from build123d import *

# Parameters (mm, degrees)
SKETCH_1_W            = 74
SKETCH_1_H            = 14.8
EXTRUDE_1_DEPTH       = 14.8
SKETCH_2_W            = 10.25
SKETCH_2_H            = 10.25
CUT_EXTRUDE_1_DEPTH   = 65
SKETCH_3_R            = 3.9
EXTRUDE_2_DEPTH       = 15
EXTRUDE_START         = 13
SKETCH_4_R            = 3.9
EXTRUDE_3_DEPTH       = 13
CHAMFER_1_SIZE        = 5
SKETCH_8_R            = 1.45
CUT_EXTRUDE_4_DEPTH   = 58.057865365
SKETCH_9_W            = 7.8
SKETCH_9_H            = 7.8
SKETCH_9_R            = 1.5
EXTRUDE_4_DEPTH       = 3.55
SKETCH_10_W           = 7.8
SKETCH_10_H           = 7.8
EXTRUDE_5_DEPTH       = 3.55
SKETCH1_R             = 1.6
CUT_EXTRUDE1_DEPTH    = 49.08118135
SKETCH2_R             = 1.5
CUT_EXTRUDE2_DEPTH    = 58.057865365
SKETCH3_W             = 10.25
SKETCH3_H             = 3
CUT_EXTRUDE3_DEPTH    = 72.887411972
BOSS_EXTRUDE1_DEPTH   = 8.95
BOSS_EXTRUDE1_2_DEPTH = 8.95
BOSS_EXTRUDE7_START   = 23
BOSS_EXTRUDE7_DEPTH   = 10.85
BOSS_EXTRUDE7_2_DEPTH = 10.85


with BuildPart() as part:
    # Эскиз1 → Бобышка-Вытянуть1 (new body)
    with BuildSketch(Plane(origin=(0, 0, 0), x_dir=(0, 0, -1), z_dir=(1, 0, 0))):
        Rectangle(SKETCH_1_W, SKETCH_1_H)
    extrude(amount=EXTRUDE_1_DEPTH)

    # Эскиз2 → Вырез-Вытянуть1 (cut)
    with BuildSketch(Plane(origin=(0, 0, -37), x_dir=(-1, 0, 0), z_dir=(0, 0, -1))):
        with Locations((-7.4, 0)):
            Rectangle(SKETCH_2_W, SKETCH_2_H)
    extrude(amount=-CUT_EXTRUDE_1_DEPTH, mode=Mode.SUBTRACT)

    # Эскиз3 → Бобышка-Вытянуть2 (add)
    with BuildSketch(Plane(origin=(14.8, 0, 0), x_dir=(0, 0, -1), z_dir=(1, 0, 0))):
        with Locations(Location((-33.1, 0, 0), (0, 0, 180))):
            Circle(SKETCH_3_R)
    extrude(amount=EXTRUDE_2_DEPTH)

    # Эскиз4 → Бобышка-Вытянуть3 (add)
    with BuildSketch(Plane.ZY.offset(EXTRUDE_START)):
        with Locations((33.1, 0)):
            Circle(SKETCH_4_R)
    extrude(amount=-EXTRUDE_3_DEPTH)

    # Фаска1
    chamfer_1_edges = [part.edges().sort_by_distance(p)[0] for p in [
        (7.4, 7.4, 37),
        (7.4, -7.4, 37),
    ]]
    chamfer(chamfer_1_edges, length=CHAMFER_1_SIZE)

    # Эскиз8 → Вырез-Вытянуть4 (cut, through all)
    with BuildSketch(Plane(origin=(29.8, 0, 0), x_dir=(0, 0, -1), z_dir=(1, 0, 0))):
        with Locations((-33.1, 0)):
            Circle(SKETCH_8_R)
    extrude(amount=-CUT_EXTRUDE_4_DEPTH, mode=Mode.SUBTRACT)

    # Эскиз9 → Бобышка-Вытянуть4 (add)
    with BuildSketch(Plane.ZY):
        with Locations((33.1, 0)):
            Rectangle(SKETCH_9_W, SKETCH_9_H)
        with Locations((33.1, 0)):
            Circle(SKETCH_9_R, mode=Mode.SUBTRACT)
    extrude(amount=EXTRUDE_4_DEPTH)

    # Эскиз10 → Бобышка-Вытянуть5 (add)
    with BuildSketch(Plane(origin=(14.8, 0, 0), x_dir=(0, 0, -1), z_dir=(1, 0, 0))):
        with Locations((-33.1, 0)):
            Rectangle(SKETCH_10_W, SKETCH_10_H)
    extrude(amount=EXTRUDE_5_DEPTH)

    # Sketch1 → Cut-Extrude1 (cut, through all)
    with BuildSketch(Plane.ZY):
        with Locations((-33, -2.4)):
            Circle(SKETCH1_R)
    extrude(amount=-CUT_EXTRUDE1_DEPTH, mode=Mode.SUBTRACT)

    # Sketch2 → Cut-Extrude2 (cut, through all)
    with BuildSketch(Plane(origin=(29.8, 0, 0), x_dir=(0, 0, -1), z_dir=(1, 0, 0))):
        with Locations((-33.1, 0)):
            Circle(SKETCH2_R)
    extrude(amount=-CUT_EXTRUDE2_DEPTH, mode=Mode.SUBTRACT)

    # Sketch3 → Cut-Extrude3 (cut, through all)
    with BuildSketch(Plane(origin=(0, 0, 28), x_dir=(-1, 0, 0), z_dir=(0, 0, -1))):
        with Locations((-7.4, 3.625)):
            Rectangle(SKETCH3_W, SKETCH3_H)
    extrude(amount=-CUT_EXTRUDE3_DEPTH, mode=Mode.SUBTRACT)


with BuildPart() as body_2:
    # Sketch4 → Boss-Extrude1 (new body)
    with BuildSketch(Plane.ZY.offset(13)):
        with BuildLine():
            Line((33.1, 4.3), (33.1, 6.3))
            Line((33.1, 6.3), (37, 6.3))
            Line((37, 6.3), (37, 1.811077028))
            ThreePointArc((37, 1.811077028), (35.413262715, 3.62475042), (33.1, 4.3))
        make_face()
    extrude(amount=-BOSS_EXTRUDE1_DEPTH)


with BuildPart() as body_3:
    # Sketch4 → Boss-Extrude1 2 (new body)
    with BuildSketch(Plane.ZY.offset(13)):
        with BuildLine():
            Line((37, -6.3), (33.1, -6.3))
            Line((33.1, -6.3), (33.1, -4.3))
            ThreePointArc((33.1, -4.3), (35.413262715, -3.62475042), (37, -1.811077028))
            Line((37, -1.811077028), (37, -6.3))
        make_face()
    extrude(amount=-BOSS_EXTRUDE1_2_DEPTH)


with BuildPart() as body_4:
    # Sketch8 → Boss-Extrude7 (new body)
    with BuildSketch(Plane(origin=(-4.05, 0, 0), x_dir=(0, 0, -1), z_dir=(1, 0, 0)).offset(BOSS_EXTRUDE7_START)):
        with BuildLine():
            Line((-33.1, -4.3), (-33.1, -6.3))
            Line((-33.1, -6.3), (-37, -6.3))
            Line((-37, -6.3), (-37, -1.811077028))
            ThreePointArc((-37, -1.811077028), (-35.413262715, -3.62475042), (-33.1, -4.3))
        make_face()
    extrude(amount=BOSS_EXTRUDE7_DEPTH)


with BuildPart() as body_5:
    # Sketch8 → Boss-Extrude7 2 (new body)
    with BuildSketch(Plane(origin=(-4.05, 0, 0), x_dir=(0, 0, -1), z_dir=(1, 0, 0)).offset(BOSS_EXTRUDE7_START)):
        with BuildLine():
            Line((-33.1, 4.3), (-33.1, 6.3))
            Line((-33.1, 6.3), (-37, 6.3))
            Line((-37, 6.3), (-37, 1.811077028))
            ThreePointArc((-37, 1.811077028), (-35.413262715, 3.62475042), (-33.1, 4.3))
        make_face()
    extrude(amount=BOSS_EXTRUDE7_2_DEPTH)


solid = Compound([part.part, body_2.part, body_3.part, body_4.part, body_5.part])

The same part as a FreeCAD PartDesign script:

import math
import FreeCAD as App
import Part
import Sketcher
Q = App.Units.Quantity


def edges_at(feature, points):
    """Names of the edges that pass closest to the given points."""
    edges = feature.Shape.Edges
    near = lambda p: min(range(len(edges)), key=lambda i: edges[i].distToShape(Part.Vertex(*p))[0])
    return sorted({f"Edge{near(p) + 1}" for p in points})


def add_polygon(sketch, points):
    """Adds a closed chain of lines whose ends are joined by coincident constraints."""
    first, n = sketch.GeometryCount, len(points)
    for a, b in zip(points, points[1:] + points[:1]):
        sketch.addGeometry(Part.LineSegment(App.Vector(*a, 0), App.Vector(*b, 0)), False)
    for i in range(n):
        sketch.addConstraint(Sketcher.Constraint("Coincident", first + i, 2, first + (i + 1) % n, 1))

doc = App.newDocument("Part")
body = doc.addObject("PartDesign::Body", "Body")

# Sketch on YZ plane
sketch1 = body.newObject("Sketcher::SketchObject", "Sketch")
sketch1.AttachmentSupport = (doc.getObject("YZ_Plane"), [""])
sketch1.MapMode = "FlatFace"
add_polygon(sketch1, [(7.4, 37), (-7.4, 37), (-7.4, -37), (7.4, -37)])  # lines 0-3
sketch1.addConstraint([
    Sketcher.Constraint("Horizontal", 0),
    Sketcher.Constraint("Vertical", 1),
    Sketcher.Constraint("Horizontal", 2),
    Sketcher.Constraint("Vertical", 3),
    Sketcher.Constraint("Symmetric", 0, 2, 2, 2, -1, 1),
    Sketcher.Constraint("DistanceY", 1, 2, 1, 1, Q("74 mm")),
    Sketcher.Constraint("DistanceX", 0, 2, 0, 1, Q("14.8 mm")),
])
pad1 = body.newObject("PartDesign::Pad", "Pad")
pad1.Profile = sketch1
pad1.Length = 14.8

# Sketch on XY plane
sketch2 = body.newObject("Sketcher::SketchObject", "Sketch001")
sketch2.AttachmentSupport = (doc.getObject("XY_Plane"), [""])
sketch2.MapMode = "FlatFace"
sketch2.AttachmentOffset = App.Placement(App.Vector(0, 0, -37), App.Rotation())
add_polygon(sketch2, [(12.525, 5.125), (12.525, -5.125), (2.275, -5.125), (2.275, 5.125)])  # lines 0-3
sketch2.addConstraint([
    Sketcher.Constraint("Vertical", 0),
    Sketcher.Constraint("Horizontal", 1),
    Sketcher.Constraint("Vertical", 2),
    Sketcher.Constraint("Horizontal", 3),
    Sketcher.Constraint("Equal", 3, 0),
    Sketcher.Constraint("DistanceX", 1, 2, 1, 1, Q("10.25 mm")),
    Sketcher.Constraint("DistanceX", -1, 1, 0, 2, Q("12.525 mm")),
    Sketcher.Constraint("DistanceY", 0, 2, -1, 1, Q("5.125 mm")),
])
pocket1 = body.newObject("PartDesign::Pocket", "Pocket")
pocket1.Profile = sketch2
pocket1.Length = 65
pocket1.Reversed = True

# Sketch on YZ plane
sketch3 = body.newObject("Sketcher::SketchObject", "Sketch002")
sketch3.AttachmentSupport = (doc.getObject("YZ_Plane"), [""])
sketch3.MapMode = "FlatFace"
sketch3.AttachmentOffset = App.Placement(App.Vector(0, 0, 14.8), App.Rotation())
sketch3.addGeometry(Part.Circle(App.Vector(0, 33.1, 0), App.Vector(0, 0, 1), 3.9), False)
sketch3.addConstraint([
    Sketcher.Constraint("PointOnObject", 0, 3, -2),
    Sketcher.Constraint("Diameter", 0, Q("7.8 mm")),
    Sketcher.Constraint("DistanceY", -1, 1, 0, 3, Q("33.1 mm")),
])
pad2 = body.newObject("PartDesign::Pad", "Pad001")
pad2.Profile = sketch3
pad2.Length = 15

# Sketch on YZ plane
sketch4 = body.newObject("Sketcher::SketchObject", "Sketch003")
sketch4.AttachmentSupport = (doc.getObject("YZ_Plane"), [""])
sketch4.MapMode = "FlatFace"
sketch4.AttachmentOffset = App.Placement(App.Vector(0, 0, -13), App.Rotation())
sketch4.addGeometry(Part.Circle(App.Vector(0, 33.1, 0), App.Vector(0, 0, 1), 3.9), False)
sketch4.addConstraint([
    Sketcher.Constraint("PointOnObject", 0, 3, -2),
    Sketcher.Constraint("Diameter", 0, Q("7.8 mm")),
    Sketcher.Constraint("DistanceY", -1, 1, 0, 3, Q("33.1 mm")),
])
pad3 = body.newObject("PartDesign::Pad", "Pad002")
pad3.Profile = sketch4
pad3.Length = 13
doc.recompute()

chamfer = body.newObject("PartDesign::Chamfer", "Chamfer")
chamfer.Base = (pad3, edges_at(pad3, [(7.4, 7.4, 37), (7.4, -7.4, 37)]))
chamfer.Size = 5

# Sketch on YZ plane
sketch5 = body.newObject("Sketcher::SketchObject", "Sketch004")
sketch5.AttachmentSupport = (doc.getObject("YZ_Plane"), [""])
sketch5.MapMode = "FlatFace"
sketch5.AttachmentOffset = App.Placement(App.Vector(0, 0, 29.8), App.Rotation())
sketch5.addGeometry(Part.Circle(App.Vector(0, 33.1, 0), App.Vector(0, 0, 1), 1.45), False)
sketch5.addConstraint([
    Sketcher.Constraint("PointOnObject", 0, 3, -2),
    Sketcher.Constraint("Diameter", 0, Q("2.9 mm")),
    Sketcher.Constraint("DistanceY", -1, 1, 0, 3, Q("33.1 mm")),
])
pocket2 = body.newObject("PartDesign::Pocket", "Pocket001")
pocket2.Profile = sketch5
pocket2.Type = "ThroughAll"

# Sketch on YZ plane
sketch6 = body.newObject("Sketcher::SketchObject", "Sketch005")
sketch6.AttachmentSupport = (doc.getObject("YZ_Plane"), [""])
sketch6.MapMode = "FlatFace"
add_polygon(sketch6, [(3.9, 29.2), (-3.9, 29.2), (-3.9, 37), (3.9, 37)])  # lines 0-3
sketch6.addGeometry(Part.Circle(App.Vector(0, 33.1, 0), App.Vector(0, 0, 1), 1.5), False)  # 4
sketch6.addConstraint([
    Sketcher.Constraint("Horizontal", 0),
    Sketcher.Constraint("Vertical", 1),
    Sketcher.Constraint("Horizontal", 2),
    Sketcher.Constraint("Vertical", 3),
    Sketcher.Constraint("PointOnObject", 4, 3, -2),
    Sketcher.Constraint("Equal", 2, 1),
    Sketcher.Constraint("Diameter", 4, Q("3 mm")),
    Sketcher.Constraint("DistanceX", 0, 2, 0, 1, Q("7.8 mm")),
    Sketcher.Constraint("DistanceY", -1, 1, 1, 2, Q("37 mm")),
    Sketcher.Constraint("DistanceY", -1, 1, 4, 3, Q("33.1 mm")),
    Sketcher.Constraint("DistanceX", 0, 2, -1, 1, Q("3.9 mm")),
])
pad4 = body.newObject("PartDesign::Pad", "Pad003")
pad4.Profile = sketch6
pad4.Length = 3.55
pad4.Reversed = True

# Sketch on YZ plane
sketch7 = body.newObject("Sketcher::SketchObject", "Sketch006")
sketch7.AttachmentSupport = (doc.getObject("YZ_Plane"), [""])
sketch7.MapMode = "FlatFace"
sketch7.AttachmentOffset = App.Placement(App.Vector(0, 0, 14.8), App.Rotation())
add_polygon(sketch7, [(3.9, 37), (-3.9, 37), (-3.9, 29.2), (3.9, 29.2)])  # lines 0-3
sketch7.addConstraint([
    Sketcher.Constraint("Horizontal", 0),
    Sketcher.Constraint("Vertical", 1),
    Sketcher.Constraint("Horizontal", 2),
    Sketcher.Constraint("Vertical", 3),
    Sketcher.Constraint("Equal", 2, 1),
    Sketcher.Constraint("DistanceX", 0, 2, 0, 1, Q("7.8 mm")),
    Sketcher.Constraint("DistanceY", -1, 1, 0, 2, Q("37 mm")),
    Sketcher.Constraint("DistanceX", 0, 2, -1, 1, Q("3.9 mm")),
])
pad5 = body.newObject("PartDesign::Pad", "Pad004")
pad5.Profile = sketch7
pad5.Length = 3.55

# Sketch on YZ plane
sketch8 = body.newObject("Sketcher::SketchObject", "Sketch007")
sketch8.AttachmentSupport = (doc.getObject("YZ_Plane"), [""])
sketch8.MapMode = "FlatFace"
sketch8.addGeometry(Part.Circle(App.Vector(-2.4, -33, 0), App.Vector(0, 0, 1), 1.6), False)
sketch8.addConstraint([
    Sketcher.Constraint("Diameter", 0, Q("3.2 mm")),
    Sketcher.Constraint("DistanceY", 0, 3, -1, 1, Q("33 mm")),
    Sketcher.Constraint("DistanceX", 0, 3, -1, 1, Q("2.4 mm")),
])
pocket3 = body.newObject("PartDesign::Pocket", "Pocket002")
pocket3.Profile = sketch8
pocket3.Type = "ThroughAll"
pocket3.Reversed = True

# Sketch on YZ plane
sketch9 = body.newObject("Sketcher::SketchObject", "Sketch008")
sketch9.AttachmentSupport = (doc.getObject("YZ_Plane"), [""])
sketch9.MapMode = "FlatFace"
sketch9.AttachmentOffset = App.Placement(App.Vector(0, 0, 29.8), App.Rotation())
sketch9.addGeometry(Part.Circle(App.Vector(0, 33.1, 0), App.Vector(0, 0, 1), 1.5), False)
sketch9.addConstraint([
    Sketcher.Constraint("PointOnObject", 0, 3, -2),
    Sketcher.Constraint("Diameter", 0, Q("3 mm")),
    Sketcher.Constraint("DistanceY", -1, 1, 0, 3, Q("33.1 mm")),
])
pocket4 = body.newObject("PartDesign::Pocket", "Pocket003")
pocket4.Profile = sketch9
pocket4.Type = "ThroughAll"

# Sketch on XY plane
sketch10 = body.newObject("Sketcher::SketchObject", "Sketch009")
sketch10.AttachmentSupport = (doc.getObject("XY_Plane"), [""])
sketch10.MapMode = "FlatFace"
sketch10.AttachmentOffset = App.Placement(App.Vector(0, 0, 28), App.Rotation())
add_polygon(sketch10, [(12.525, 5.125), (12.525, 2.125), (2.275, 2.125), (2.275, 5.125)])  # lines 0-3
sketch10.addConstraint([
    Sketcher.Constraint("Vertical", 0),
    Sketcher.Constraint("Horizontal", 1),
    Sketcher.Constraint("Vertical", 2),
    Sketcher.Constraint("Horizontal", 3),
    Sketcher.Constraint("DistanceY", 0, 2, 0, 1, Q("3 mm")),
    Sketcher.Constraint("DistanceX", 1, 2, 1, 1, Q("10.25 mm")),
    Sketcher.Constraint("DistanceX", -1, 1, 0, 2, Q("12.525 mm")),
    Sketcher.Constraint("DistanceY", -1, 1, 0, 2, Q("2.125 mm")),
])
pocket5 = body.newObject("PartDesign::Pocket", "Pocket004")
pocket5.Profile = sketch10
pocket5.Type = "ThroughAll"
pocket5.Reversed = True
body2 = doc.addObject("PartDesign::Body", "Body001")

# Sketch on YZ plane
sketch11 = body2.newObject("Sketcher::SketchObject", "Sketch010")
sketch11.AttachmentSupport = (doc.getObject("YZ_Plane001"), [""])
sketch11.MapMode = "FlatFace"
sketch11.AttachmentOffset = App.Placement(App.Vector(0, 0, -13), App.Rotation())
sketch11.addGeometry([
    Part.LineSegment(App.Vector(6.3, 33.1, 0), App.Vector(4.3, 33.1, 0)),
    Part.ArcOfCircle(Part.Circle(App.Vector(0, 33.1, 0), App.Vector(0, 0, 1), 4.3), math.radians(0), math.radians(65.090847)),
    Part.LineSegment(App.Vector(1.811077, 37, 0), App.Vector(6.3, 37, 0)),
    Part.LineSegment(App.Vector(6.3, 37, 0), App.Vector(6.3, 33.1, 0)),
], False)
sketch11.addConstraint([
    Sketcher.Constraint("Coincident", 0, 2, 1, 1),
    Sketcher.Constraint("Coincident", 1, 2, 2, 1),
    Sketcher.Constraint("Coincident", 2, 2, 3, 1),
    Sketcher.Constraint("Coincident", 3, 2, 0, 1),
    Sketcher.Constraint("Horizontal", 0),
    Sketcher.Constraint("Horizontal", 2),
    Sketcher.Constraint("Vertical", 3),
    Sketcher.Constraint("PointOnObject", 1, 3, -2),
    Sketcher.Constraint("Horizontal", 1, 3, 0, 2),
    Sketcher.Constraint("Radius", 1, Q("4.3 mm")),
    Sketcher.Constraint("DistanceX", 0, 2, 0, 1, Q("2 mm")),
    Sketcher.Constraint("DistanceY", 3, 2, 3, 1, Q("3.9 mm")),
    Sketcher.Constraint("DistanceY", -1, 1, 1, 2, Q("37 mm")),
])
pad6 = body2.newObject("PartDesign::Pad", "Pad005")
pad6.Profile = sketch11
pad6.Length = 8.95
body3 = doc.addObject("PartDesign::Body", "Body002")

# Sketch on YZ plane
sketch12 = body3.newObject("Sketcher::SketchObject", "Sketch011")
sketch12.AttachmentSupport = (doc.getObject("YZ_Plane002"), [""])
sketch12.MapMode = "FlatFace"
sketch12.AttachmentOffset = App.Placement(App.Vector(0, 0, -13), App.Rotation())
sketch12.addGeometry([
    Part.LineSegment(App.Vector(-6.3, 33.1, 0), App.Vector(-6.3, 37, 0)),
    Part.LineSegment(App.Vector(-6.3, 37, 0), App.Vector(-1.811077, 37, 0)),
    Part.ArcOfCircle(Part.Circle(App.Vector(0, 33.1, 0), App.Vector(0, 0, 1), 4.3), math.radians(114.909153), math.radians(180)),
    Part.LineSegment(App.Vector(-4.3, 33.1, 0), App.Vector(-6.3, 33.1, 0)),
], False)
sketch12.addConstraint([
    Sketcher.Constraint("Coincident", 0, 2, 1, 1),
    Sketcher.Constraint("Coincident", 1, 2, 2, 1),
    Sketcher.Constraint("Coincident", 2, 2, 3, 1),
    Sketcher.Constraint("Coincident", 3, 2, 0, 1),
    Sketcher.Constraint("Vertical", 0),
    Sketcher.Constraint("Horizontal", 1),
    Sketcher.Constraint("Horizontal", 3),
    Sketcher.Constraint("PointOnObject", 2, 3, -2),
    Sketcher.Constraint("Radius", 2, Q("4.3 mm")),
    Sketcher.Constraint("DistanceX", 3, 2, 3, 1, Q("2 mm")),
    Sketcher.Constraint("DistanceY", 0, 1, 0, 2, Q("3.9 mm")),
    Sketcher.Constraint("DistanceY", -1, 1, 0, 2, Q("37 mm")),
    Sketcher.Constraint("DistanceY", -1, 1, 2, 3, Q("33.1 mm")),
])
pad7 = body3.newObject("PartDesign::Pad", "Pad006")
pad7.Profile = sketch12
pad7.Length = 8.95
body4 = doc.addObject("PartDesign::Body", "Body003")

# Sketch on YZ plane
sketch13 = body4.newObject("Sketcher::SketchObject", "Sketch012")
sketch13.AttachmentSupport = (doc.getObject("YZ_Plane003"), [""])
sketch13.MapMode = "FlatFace"
sketch13.AttachmentOffset = App.Placement(App.Vector(0, 0, 18.95), App.Rotation())
sketch13.addGeometry([
    Part.LineSegment(App.Vector(-6.3, 33.1, 0), App.Vector(-4.3, 33.1, 0)),
    Part.ArcOfCircle(Part.Circle(App.Vector(0, 33.1, 0), App.Vector(0, 0, 1), 4.3), math.radians(114.909153), math.radians(180)),
    Part.LineSegment(App.Vector(-1.811077, 37, 0), App.Vector(-6.3, 37, 0)),
    Part.LineSegment(App.Vector(-6.3, 37, 0), App.Vector(-6.3, 33.1, 0)),
], False)
sketch13.addConstraint([
    Sketcher.Constraint("Coincident", 0, 2, 1, 2),
    Sketcher.Constraint("Coincident", 1, 1, 2, 1),
    Sketcher.Constraint("Coincident", 2, 2, 3, 1),
    Sketcher.Constraint("Coincident", 3, 2, 0, 1),
    Sketcher.Constraint("Horizontal", 0),
    Sketcher.Constraint("Horizontal", 2),
    Sketcher.Constraint("Vertical", 3),
    Sketcher.Constraint("PointOnObject", 1, 3, -2),
    Sketcher.Constraint("Horizontal", 1, 3, 0, 2),
    Sketcher.Constraint("Radius", 1, Q("4.3 mm")),
    Sketcher.Constraint("DistanceX", 0, 1, 0, 2, Q("2 mm")),
    Sketcher.Constraint("DistanceY", 3, 2, 3, 1, Q("3.9 mm")),
    Sketcher.Constraint("DistanceY", -1, 1, 1, 1, Q("37 mm")),
])
pad8 = body4.newObject("PartDesign::Pad", "Pad007")
pad8.Profile = sketch13
pad8.Length = 10.85
body5 = doc.addObject("PartDesign::Body", "Body004")

# Sketch on YZ plane
sketch14 = body5.newObject("Sketcher::SketchObject", "Sketch013")
sketch14.AttachmentSupport = (doc.getObject("YZ_Plane004"), [""])
sketch14.MapMode = "FlatFace"
sketch14.AttachmentOffset = App.Placement(App.Vector(0, 0, 18.95), App.Rotation())
sketch14.addGeometry([
    Part.LineSegment(App.Vector(4.3, 33.1, 0), App.Vector(6.3, 33.1, 0)),
    Part.LineSegment(App.Vector(6.3, 33.1, 0), App.Vector(6.3, 37, 0)),
    Part.LineSegment(App.Vector(6.3, 37, 0), App.Vector(1.811077, 37, 0)),
    Part.ArcOfCircle(Part.Circle(App.Vector(0, 33.1, 0), App.Vector(0, 0, 1), 4.3), math.radians(0), math.radians(65.090847)),
], False)
sketch14.addConstraint([
    Sketcher.Constraint("Coincident", 0, 2, 1, 1),
    Sketcher.Constraint("Coincident", 1, 2, 2, 1),
    Sketcher.Constraint("Coincident", 2, 2, 3, 2),
    Sketcher.Constraint("Coincident", 3, 1, 0, 1),
    Sketcher.Constraint("Horizontal", 0),
    Sketcher.Constraint("Vertical", 1),
    Sketcher.Constraint("Horizontal", 2),
    Sketcher.Constraint("PointOnObject", 3, 3, -2),
    Sketcher.Constraint("Horizontal", 3, 3, 0, 2),
    Sketcher.Constraint("Radius", 3, Q("4.3 mm")),
    Sketcher.Constraint("DistanceX", 0, 1, 0, 2, Q("2 mm")),
    Sketcher.Constraint("DistanceY", 1, 1, 1, 2, Q("3.9 mm")),
    Sketcher.Constraint("DistanceY", -1, 1, 1, 2, Q("37 mm")),
])
pad9 = body5.newObject("PartDesign::Pad", "Pad008")
pad9.Profile = sketch14
pad9.Length = 10.85

doc.recompute()
